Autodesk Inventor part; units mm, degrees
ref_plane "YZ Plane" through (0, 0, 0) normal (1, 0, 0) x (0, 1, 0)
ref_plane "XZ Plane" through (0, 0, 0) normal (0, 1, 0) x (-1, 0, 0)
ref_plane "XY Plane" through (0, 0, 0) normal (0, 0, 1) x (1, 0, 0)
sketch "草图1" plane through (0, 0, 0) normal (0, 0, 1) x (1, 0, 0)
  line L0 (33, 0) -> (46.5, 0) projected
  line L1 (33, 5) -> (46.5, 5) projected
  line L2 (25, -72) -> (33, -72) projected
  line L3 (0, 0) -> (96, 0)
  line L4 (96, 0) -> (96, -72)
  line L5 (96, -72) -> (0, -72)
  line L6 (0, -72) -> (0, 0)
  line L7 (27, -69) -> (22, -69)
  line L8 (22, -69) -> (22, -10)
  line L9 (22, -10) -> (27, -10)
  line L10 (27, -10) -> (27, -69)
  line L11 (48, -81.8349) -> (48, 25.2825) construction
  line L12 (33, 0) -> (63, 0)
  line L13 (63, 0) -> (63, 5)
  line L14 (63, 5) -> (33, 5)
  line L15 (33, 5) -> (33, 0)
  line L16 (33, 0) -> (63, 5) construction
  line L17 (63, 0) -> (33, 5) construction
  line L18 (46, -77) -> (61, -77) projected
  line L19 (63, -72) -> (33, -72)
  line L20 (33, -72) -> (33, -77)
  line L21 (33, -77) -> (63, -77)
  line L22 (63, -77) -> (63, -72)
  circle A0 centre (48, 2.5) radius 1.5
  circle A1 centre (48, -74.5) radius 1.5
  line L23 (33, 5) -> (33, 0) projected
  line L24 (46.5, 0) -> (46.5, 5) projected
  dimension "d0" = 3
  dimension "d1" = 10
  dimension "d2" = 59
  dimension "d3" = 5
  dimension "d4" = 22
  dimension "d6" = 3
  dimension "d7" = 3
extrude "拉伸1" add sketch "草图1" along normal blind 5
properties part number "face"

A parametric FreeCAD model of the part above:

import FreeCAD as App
import Part
import Sketcher
from FreeCAD import Vector
Q = App.Units.Quantity

doc = App.newDocument("Part")
body = doc.addObject("PartDesign::Body", "Body")

# Sketch on XY plane
sketch1 = doc.addObject("Sketcher::SketchObject", "Sketch")
body.addObject(sketch1)
sketch1.AttachmentSupport = (doc.XY_Plane, [""])
sketch1.MapMode = "FlatFace"
sketch1.addGeometry([
    Part.LineSegment(Vector(33, 5, 0), Vector(33, 0, 0)),  # 0
    Part.LineSegment(Vector(33, 0, 0), Vector(0, 0, 0)),  # 1
    Part.LineSegment(Vector(0, 0, 0), Vector(0, -72, 0)),  # 2
    Part.LineSegment(Vector(0, -72, 0), Vector(33, -72, 0)),  # 3
    Part.LineSegment(Vector(33, -72, 0), Vector(33, -77, 0)),  # 4
    Part.LineSegment(Vector(33, -77, 0), Vector(63, -77, 0)),  # 5
    Part.LineSegment(Vector(63, -77, 0), Vector(63, -72, 0)),  # 6
    Part.LineSegment(Vector(63, -72, 0), Vector(96, -72, 0)),  # 7
    Part.LineSegment(Vector(96, -72, 0), Vector(96, 0, 0)),  # 8
    Part.LineSegment(Vector(96, 0, 0), Vector(63, 0, 0)),  # 9
    Part.LineSegment(Vector(63, 0, 0), Vector(63, 5, 0)),  # 10
    Part.LineSegment(Vector(63, 5, 0), Vector(33, 5, 0)),  # 11
    Part.Circle(Vector(48, 2.5, 0), Vector(0, 0, 1), 1.5),  # 12
    Part.LineSegment(Vector(27, -69, 0), Vector(22, -69, 0)),  # 13
    Part.LineSegment(Vector(22, -69, 0), Vector(22, -10, 0)),  # 14
    Part.LineSegment(Vector(22, -10, 0), Vector(27, -10, 0)),  # 15
    Part.LineSegment(Vector(27, -10, 0), Vector(27, -69, 0)),  # 16
    Part.Circle(Vector(48, -74.5, 0), Vector(0, 0, 1), 1.5),  # 17
], False)
sketch1.addConstraint([
    Sketcher.Constraint("Coincident", 0, 2, 1, 1),
    Sketcher.Constraint("Coincident", 1, 2, 2, 1),
    Sketcher.Constraint("Coincident", 2, 2, 3, 1),
    Sketcher.Constraint("Coincident", 3, 2, 4, 1),
    Sketcher.Constraint("Coincident", 4, 2, 5, 1),
    Sketcher.Constraint("Coincident", 5, 2, 6, 1),
    Sketcher.Constraint("Coincident", 6, 2, 7, 1),
    Sketcher.Constraint("Coincident", 7, 2, 8, 1),
    Sketcher.Constraint("Coincident", 8, 2, 9, 1),
    Sketcher.Constraint("Coincident", 9, 2, 10, 1),
    Sketcher.Constraint("Coincident", 10, 2, 11, 1),
    Sketcher.Constraint("Coincident", 11, 2, 0, 1),
    Sketcher.Constraint("Coincident", 13, 2, 14, 1),
    Sketcher.Constraint("Coincident", 14, 2, 15, 1),
    Sketcher.Constraint("Coincident", 15, 2, 16, 1),
    Sketcher.Constraint("Coincident", 16, 2, 13, 1),
    Sketcher.Constraint("Vertical", 0),
    Sketcher.Constraint("Horizontal", 1),
    Sketcher.Constraint("Vertical", 2),
    Sketcher.Constraint("Horizontal", 3),
    Sketcher.Constraint("Vertical", 4),
    Sketcher.Constraint("Horizontal", 5),
    Sketcher.Constraint("Vertical", 6),
    Sketcher.Constraint("Horizontal", 7),
    Sketcher.Constraint("Vertical", 8),
    Sketcher.Constraint("Horizontal", 9),
    Sketcher.Constraint("Vertical", 10),
    Sketcher.Constraint("Horizontal", 11),
    Sketcher.Constraint("Horizontal", 13),
    Sketcher.Constraint("Vertical", 14),
    Sketcher.Constraint("Horizontal", 15),
    Sketcher.Constraint("Vertical", 16),
    Sketcher.Constraint("Coincident", 1, 2, -1, 1),
    Sketcher.Constraint("Equal", 12, 17),
    Sketcher.Constraint("PointOnObject", 8, 2, -1),
    Sketcher.Constraint("Horizontal", 3, 2, 6, 2),
    Sketcher.Constraint("Vertical", 12, 3, 17, 3),
    Sketcher.Constraint("Vertical", 0, 2, 3, 2),
    Sketcher.Constraint("Vertical", 6, 2, 9, 2),
    Sketcher.Constraint("Equal", 3, 7),
    Sketcher.Constraint("Equal", 15, 0),
    Sketcher.Constraint("Equal", 0, 4),
    Sketcher.Constraint("Diameter", 12, Q("3 mm")),
    Sketcher.Constraint("DistanceX", 13, 2, 13, 1, Q("5 mm")),
    Sketcher.Constraint("DistanceY", 14, 1, 14, 2, Q("59 mm")),
    Sketcher.Constraint("DistanceX", -1, 1, 13, 2, Q("22 mm")),
    Sketcher.Constraint("DistanceY", 14, 2, -1, 1, Q("10 mm")),
    Sketcher.Constraint("DistanceY", 3, 2, 13, 2, Q("3 mm")),
    Sketcher.Constraint("DistanceX", 1, 2, 1, 1, Q("33 mm")),
    Sketcher.Constraint("DistanceX", 5, 1, 5, 2, Q("30 mm")),
    Sketcher.Constraint("DistanceX", -1, 1, 12, 3, Q("48 mm")),
    Sketcher.Constraint("DistanceY", 17, 3, 12, 3, Q("77 mm")),
    Sketcher.Constraint("DistanceY", -1, 1, 12, 3, Q("2.5 mm")),
])
pad1 = doc.addObject("PartDesign::Pad", "Pad")
body.addObject(pad1)
pad1.Profile = sketch1
pad1.Length = 5

doc.recompute()
